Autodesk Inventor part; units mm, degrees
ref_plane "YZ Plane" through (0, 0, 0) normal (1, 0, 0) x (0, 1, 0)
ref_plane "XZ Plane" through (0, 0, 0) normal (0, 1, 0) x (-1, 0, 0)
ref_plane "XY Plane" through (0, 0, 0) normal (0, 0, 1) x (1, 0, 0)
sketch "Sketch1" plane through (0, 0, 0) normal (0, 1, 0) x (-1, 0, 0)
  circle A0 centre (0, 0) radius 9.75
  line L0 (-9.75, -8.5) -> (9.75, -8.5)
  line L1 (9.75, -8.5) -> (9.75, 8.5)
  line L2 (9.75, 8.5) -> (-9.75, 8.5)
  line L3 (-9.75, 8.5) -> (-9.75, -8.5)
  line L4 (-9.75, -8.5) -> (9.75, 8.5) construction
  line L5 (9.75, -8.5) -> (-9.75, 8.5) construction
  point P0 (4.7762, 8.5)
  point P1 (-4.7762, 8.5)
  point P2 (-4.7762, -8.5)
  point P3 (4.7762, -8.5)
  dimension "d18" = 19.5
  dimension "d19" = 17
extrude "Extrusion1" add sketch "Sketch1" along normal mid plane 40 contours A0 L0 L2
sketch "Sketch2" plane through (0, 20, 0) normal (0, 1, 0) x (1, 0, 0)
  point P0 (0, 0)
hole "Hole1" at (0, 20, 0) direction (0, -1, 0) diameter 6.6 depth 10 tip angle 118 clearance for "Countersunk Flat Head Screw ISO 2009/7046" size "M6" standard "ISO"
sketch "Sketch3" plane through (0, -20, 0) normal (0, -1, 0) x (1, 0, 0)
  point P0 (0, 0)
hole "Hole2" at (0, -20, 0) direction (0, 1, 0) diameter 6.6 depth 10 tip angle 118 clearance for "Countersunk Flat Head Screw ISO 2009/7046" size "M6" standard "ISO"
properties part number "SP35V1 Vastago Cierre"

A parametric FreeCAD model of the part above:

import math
import FreeCAD as App
import Part
import Sketcher

doc = App.newDocument("Part")
body = doc.addObject("PartDesign::Body", "Body")

sketch1 = body.newObject("Sketcher::SketchObject", "Sketch")
sketch1.AttachmentSupport = (doc.getObject("XZ_Plane"), [""])
sketch1.MapMode = "FlatFace"
sketch1.addGeometry([
    Part.ArcOfCircle(Part.Circle(App.Vector(0, 0, 0), App.Vector(0, 0, 1), 10), math.radians(119), math.radians(241)),
    Part.LineSegment(App.Vector(-5, 8, 0), App.Vector(5, 8, 0)),
    Part.ArcOfCircle(Part.Circle(App.Vector(0, 0, 0), App.Vector(0, 0, 1), 10), math.radians(-61), math.radians(61)),
    Part.LineSegment(App.Vector(5, -8, 0), App.Vector(-5, -8, 0)),
], False)
sketch1.addConstraint([
    Sketcher.Constraint("Coincident", 0, 1, 1, 1),
    Sketcher.Constraint("Coincident", 1, 2, 2, 2),
    Sketcher.Constraint("Coincident", 2, 1, 3, 1),
    Sketcher.Constraint("Coincident", 3, 2, 0, 2),
    Sketcher.Constraint("Horizontal", 1),
    Sketcher.Constraint("Horizontal", 3),
    Sketcher.Constraint("Coincident", 0, 3, -1, 1),
    Sketcher.Constraint("Coincident", 2, 3, -1, 1),
    Sketcher.Constraint("Equal", 0, 2),
    Sketcher.Constraint("Vertical", 1, 2, 2, 1),
    Sketcher.Constraint("Radius", 0, 9.75),
    Sketcher.Constraint("DistanceY", 2, 1, 1, 2, 17.0),
])
pad1 = body.newObject("PartDesign::Pad", "Pad")
pad1.Profile = sketch1
pad1.Length = 40
pad1.Midplane = True

sketch2 = body.newObject("Sketcher::SketchObject", "Sketch001")
sketch2.AttachmentSupport = (doc.getObject("XZ_Plane"), [""])
sketch2.MapMode = "FlatFace"
sketch2.AttachmentOffset = App.Placement(App.Vector(0, 0, -20), App.Rotation())
sketch2.addGeometry(Part.Circle(App.Vector(0, 0, 0), App.Vector(0, 0, 1), 3.3), False)
sketch2.addConstraint([
    Sketcher.Constraint("Coincident", 0, 3, -1, 1),
    Sketcher.Constraint("Diameter", 0, 6.6),
])
doc.recompute()
hole = body.newObject("PartDesign::Hole", "Hole")
hole.Profile = sketch2
hole.ThreadType = "None"
hole.Diameter = 6.6
hole.DepthType = "Dimension"
hole.Depth = 10
hole.DrillPoint = "Angled"
hole.DrillPointAngle = 118
hole.Reversed = True

sketch3 = body.newObject("Sketcher::SketchObject", "Sketch002")
sketch3.AttachmentSupport = (doc.getObject("XZ_Plane"), [""])
sketch3.MapMode = "FlatFace"
sketch3.AttachmentOffset = App.Placement(App.Vector(0, 0, 20), App.Rotation())
sketch3.addGeometry(Part.Circle(App.Vector(0, 0, 0), App.Vector(0, 0, 1), 3.3), False)
sketch3.addConstraint([
    Sketcher.Constraint("Coincident", 0, 3, -1, 1),
    Sketcher.Constraint("Diameter", 0, 6.6),
])
doc.recompute()
hole2 = body.newObject("PartDesign::Hole", "Hole001")
hole2.Profile = sketch3
hole2.ThreadType = "None"
hole2.Diameter = 6.6
hole2.DepthType = "Dimension"
hole2.Depth = 10
hole2.DrillPoint = "Angled"
hole2.DrillPointAngle = 118

doc.recompute()
